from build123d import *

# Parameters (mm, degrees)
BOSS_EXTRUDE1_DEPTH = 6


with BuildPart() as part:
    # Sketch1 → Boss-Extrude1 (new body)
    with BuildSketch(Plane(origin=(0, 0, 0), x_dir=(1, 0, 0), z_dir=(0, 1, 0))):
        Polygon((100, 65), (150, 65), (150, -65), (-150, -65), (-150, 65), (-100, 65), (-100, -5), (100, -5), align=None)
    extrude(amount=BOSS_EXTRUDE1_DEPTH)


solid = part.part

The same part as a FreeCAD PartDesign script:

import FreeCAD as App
import Part
import Sketcher
Q = App.Units.Quantity

doc = App.newDocument("Part")
body = doc.addObject("PartDesign::Body", "Body")

# Sketch on XZ plane
sketch1 = body.newObject("Sketcher::SketchObject", "Sketch")
sketch1.AttachmentSupport = (doc.getObject("XZ_Plane"), [""])
sketch1.MapMode = "FlatFace"
sketch1.addGeometry([
    Part.LineSegment(App.Vector(150, -65, 0), App.Vector(100, -65, 0)),  # 0
    Part.LineSegment(App.Vector(100, -65, 0), App.Vector(100, 5, 0)),  # 1
    Part.LineSegment(App.Vector(100, 5, 0), App.Vector(-100, 5, 0)),  # 2
    Part.LineSegment(App.Vector(-100, 5, 0), App.Vector(-100, -65, 0)),  # 3
    Part.LineSegment(App.Vector(-100, -65, 0), App.Vector(-150, -65, 0)),  # 4
    Part.LineSegment(App.Vector(-150, -65, 0), App.Vector(-150, 65, 0)),  # 5
    Part.LineSegment(App.Vector(-150, 65, 0), App.Vector(150, 65, 0)),  # 6
    Part.LineSegment(App.Vector(150, 65, 0), App.Vector(150, -65, 0)),  # 7
], False)
sketch1.addConstraint([
    Sketcher.Constraint("Coincident", 0, 2, 1, 1),
    Sketcher.Constraint("Coincident", 1, 2, 2, 1),
    Sketcher.Constraint("Coincident", 2, 2, 3, 1),
    Sketcher.Constraint("Coincident", 3, 2, 4, 1),
    Sketcher.Constraint("Coincident", 4, 2, 5, 1),
    Sketcher.Constraint("Coincident", 5, 2, 6, 1),
    Sketcher.Constraint("Coincident", 6, 2, 7, 1),
    Sketcher.Constraint("Coincident", 7, 2, 0, 1),
    Sketcher.Constraint("Horizontal", 0),
    Sketcher.Constraint("Vertical", 1),
    Sketcher.Constraint("Horizontal", 2),
    Sketcher.Constraint("Vertical", 3),
    Sketcher.Constraint("Horizontal", 4),
    Sketcher.Constraint("Vertical", 5),
    Sketcher.Constraint("Horizontal", 6),
    Sketcher.Constraint("Vertical", 7),
    Sketcher.Constraint("Symmetric", 4, 2, 6, 2, -1, 1),
    Sketcher.Constraint("Symmetric", 0, 2, 3, 2, -2),
    Sketcher.Constraint("DistanceX", 0, 2, 0, 1, Q("50 mm")),
    Sketcher.Constraint("DistanceX", 2, 2, 2, 1, Q("200 mm")),
    Sketcher.Constraint("DistanceY", 1, 1, 1, 2, Q("70 mm")),
    Sketcher.Constraint("DistanceY", 5, 1, 5, 2, Q("130 mm")),
])
pad1 = body.newObject("PartDesign::Pad", "Pad")
pad1.Profile = sketch1
pad1.Length = 6
pad1.Reversed = True

doc.recompute()
